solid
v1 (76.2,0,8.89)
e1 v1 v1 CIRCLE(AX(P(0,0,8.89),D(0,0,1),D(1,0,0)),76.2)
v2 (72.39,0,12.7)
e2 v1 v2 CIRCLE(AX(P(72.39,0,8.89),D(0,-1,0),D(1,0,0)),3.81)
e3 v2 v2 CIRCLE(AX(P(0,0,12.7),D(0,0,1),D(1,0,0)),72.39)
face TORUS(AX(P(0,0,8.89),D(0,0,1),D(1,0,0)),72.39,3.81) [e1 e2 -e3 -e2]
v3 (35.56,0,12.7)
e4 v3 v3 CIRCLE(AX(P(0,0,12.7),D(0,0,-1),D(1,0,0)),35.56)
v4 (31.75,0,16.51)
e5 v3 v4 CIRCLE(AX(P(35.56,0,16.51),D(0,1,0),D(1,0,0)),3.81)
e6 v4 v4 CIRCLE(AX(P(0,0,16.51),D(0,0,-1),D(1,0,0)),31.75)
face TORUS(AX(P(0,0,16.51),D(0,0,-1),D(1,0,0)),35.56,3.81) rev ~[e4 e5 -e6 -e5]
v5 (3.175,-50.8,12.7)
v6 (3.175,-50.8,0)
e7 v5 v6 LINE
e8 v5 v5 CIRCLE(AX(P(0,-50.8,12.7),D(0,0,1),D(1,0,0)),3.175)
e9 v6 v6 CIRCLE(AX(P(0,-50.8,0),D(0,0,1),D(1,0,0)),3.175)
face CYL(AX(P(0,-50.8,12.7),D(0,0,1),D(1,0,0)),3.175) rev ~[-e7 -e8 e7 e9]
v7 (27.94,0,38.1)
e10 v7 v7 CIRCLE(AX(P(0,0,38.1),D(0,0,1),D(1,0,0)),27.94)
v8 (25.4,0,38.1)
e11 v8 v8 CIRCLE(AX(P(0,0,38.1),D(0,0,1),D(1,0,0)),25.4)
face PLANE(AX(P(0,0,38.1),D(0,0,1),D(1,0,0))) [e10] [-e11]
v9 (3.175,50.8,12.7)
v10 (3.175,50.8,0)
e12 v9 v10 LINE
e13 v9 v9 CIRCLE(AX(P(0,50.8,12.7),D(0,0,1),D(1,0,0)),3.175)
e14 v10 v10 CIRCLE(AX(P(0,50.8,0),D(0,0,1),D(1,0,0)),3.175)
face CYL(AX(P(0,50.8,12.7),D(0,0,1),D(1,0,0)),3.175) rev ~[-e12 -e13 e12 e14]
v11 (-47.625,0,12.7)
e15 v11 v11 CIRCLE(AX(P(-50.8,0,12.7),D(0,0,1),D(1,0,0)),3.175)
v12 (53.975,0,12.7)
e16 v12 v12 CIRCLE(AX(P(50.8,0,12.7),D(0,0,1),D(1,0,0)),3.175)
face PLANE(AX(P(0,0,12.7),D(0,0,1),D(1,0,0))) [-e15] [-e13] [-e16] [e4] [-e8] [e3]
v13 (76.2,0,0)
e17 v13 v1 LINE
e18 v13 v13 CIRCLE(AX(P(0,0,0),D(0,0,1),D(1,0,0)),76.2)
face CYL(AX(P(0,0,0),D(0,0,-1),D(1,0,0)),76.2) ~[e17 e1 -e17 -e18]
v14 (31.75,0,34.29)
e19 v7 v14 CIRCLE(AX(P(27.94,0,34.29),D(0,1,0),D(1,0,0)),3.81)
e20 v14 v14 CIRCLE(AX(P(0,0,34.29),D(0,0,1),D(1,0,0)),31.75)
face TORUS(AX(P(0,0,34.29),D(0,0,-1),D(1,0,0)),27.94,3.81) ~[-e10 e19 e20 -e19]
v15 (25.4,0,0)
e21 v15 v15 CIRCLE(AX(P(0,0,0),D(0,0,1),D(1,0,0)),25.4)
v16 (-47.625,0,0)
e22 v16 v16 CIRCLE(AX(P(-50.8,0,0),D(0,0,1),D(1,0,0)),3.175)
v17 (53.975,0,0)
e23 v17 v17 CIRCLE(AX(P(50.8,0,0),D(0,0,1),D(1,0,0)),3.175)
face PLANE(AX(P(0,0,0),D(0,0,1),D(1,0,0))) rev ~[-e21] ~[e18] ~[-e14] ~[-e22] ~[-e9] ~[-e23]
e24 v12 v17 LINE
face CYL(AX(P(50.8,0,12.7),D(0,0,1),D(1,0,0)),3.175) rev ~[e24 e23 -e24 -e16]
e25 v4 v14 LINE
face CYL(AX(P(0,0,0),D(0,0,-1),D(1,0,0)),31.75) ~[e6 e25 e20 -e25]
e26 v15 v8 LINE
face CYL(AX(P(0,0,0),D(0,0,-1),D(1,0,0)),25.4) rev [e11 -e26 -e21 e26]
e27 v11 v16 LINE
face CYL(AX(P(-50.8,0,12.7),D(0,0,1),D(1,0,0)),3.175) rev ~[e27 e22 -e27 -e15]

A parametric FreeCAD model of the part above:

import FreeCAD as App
import Part
import Sketcher
from FreeCAD import Vector
Q = App.Units.Quantity


def edges_at(feature, points):
    """Names of the edges that pass closest to the given points."""
    edges = feature.Shape.Edges
    near = lambda p: min(range(len(edges)), key=lambda i: edges[i].distToShape(Part.Vertex(*p))[0])
    return sorted({f"Edge{near(p) + 1}" for p in points})

doc = App.newDocument("Part")
body = doc.addObject("PartDesign::Body", "Body")

# Sketch on XY plane
sketch1 = body.newObject("Sketcher::SketchObject", "Sketch")
sketch1.AttachmentSupport = (doc.getObject("XY_Plane"), [""])
sketch1.MapMode = "FlatFace"
sketch1.addGeometry(Part.Circle(Vector(0, 0, 0), Vector(0, 0, 1), 76), False)
sketch1.addGeometry(Part.Circle(Vector(0, 0, 0), Vector(0, 0, 1), 25), False)
sketch1.addConstraint(Sketcher.Constraint("Coincident", 0, 3, -1, 1))
sketch1.addConstraint(Sketcher.Constraint("Coincident", 1, 3, -1, 1))
sketch1.addConstraint(Sketcher.Constraint("Diameter", 0, Q("6 in")))
sketch1.addConstraint(Sketcher.Constraint("Diameter", 1, Q("2 in")))
pad1 = body.newObject("PartDesign::Pad", "Pad")
pad1.Profile = sketch1
pad1.Length = Q("0.5 in")

# Sketch on XY plane
sketch2 = body.newObject("Sketcher::SketchObject", "Sketch001")
sketch2.AttachmentSupport = (doc.getObject("XY_Plane"), [""])
sketch2.MapMode = "FlatFace"
sketch2.addGeometry(Part.Circle(Vector(0, 0, 0), Vector(0, 0, 1), 32), False)
sketch2.addGeometry(Part.Circle(Vector(0, 0, 0), Vector(0, 0, 1), 25), False)
sketch2.addConstraint(Sketcher.Constraint("Coincident", 0, 3, -1, 1))
sketch2.addConstraint(Sketcher.Constraint("Coincident", 1, 3, -1, 1))
sketch2.addConstraint(Sketcher.Constraint("Diameter", 1, Q("2 in")))
sketch2.addConstraint(Sketcher.Constraint("Diameter", 0, Q("2.5 in")))
pad2 = body.newObject("PartDesign::Pad", "Pad001")
pad2.Profile = sketch2
pad2.Length = Q("1.5 in")

# Sketch on XY plane
sketch3 = body.newObject("Sketcher::SketchObject", "Sketch002")
sketch3.AttachmentSupport = (doc.getObject("XY_Plane"), [""])
sketch3.MapMode = "FlatFace"
sketch3.AttachmentOffset = App.Placement(Vector(0, 0, 0.5 * 25.4), App.Rotation())
sketch3.addGeometry(Part.Circle(Vector(-50.8, 0, 0), Vector(0, 0, 1), 3.2), False)
sketch3.addGeometry(Part.Circle(Vector(0, -50.8, 0), Vector(0, 0, 1), 3.2), False)
sketch3.addGeometry(Part.Circle(Vector(50.8, 0, 0), Vector(0, 0, 1), 3.2), False)
sketch3.addGeometry(Part.Circle(Vector(0, 50.8, 0), Vector(0, 0, 1), 3.2), False)
sketch3.addConstraint(Sketcher.Constraint("Equal", 0, 1))
sketch3.addConstraint(Sketcher.Constraint("Equal", 1, 2))
sketch3.addConstraint(Sketcher.Constraint("Equal", 2, 3))
sketch3.addConstraint(Sketcher.Constraint("Symmetric", 0, 3, 2, 3, -1, 1))
sketch3.addConstraint(Sketcher.Constraint("Symmetric", 1, 3, 3, 3, -1, 1))
sketch3.addConstraint(Sketcher.Constraint("PointOnObject", 0, 3, -1))
sketch3.addConstraint(Sketcher.Constraint("PointOnObject", 1, 3, -2))
sketch3.addConstraint(Sketcher.Constraint("Diameter", 0, Q("0.25 in")))
sketch3.addConstraint(Sketcher.Constraint("DistanceX", 0, 3, -1, 1, Q("2 in")))
sketch3.addConstraint(Sketcher.Constraint("DistanceY", 1, 3, -1, 1, Q("2 in")))
pocket1 = body.newObject("PartDesign::Pocket", "Pocket")
pocket1.Profile = sketch3
pocket1.Type = "ThroughAll"
doc.recompute()

fillet = body.newObject("PartDesign::Fillet", "Fillet")
fillet.Base = (pocket1, edges_at(pocket1, [(-76.2, 0, 12.7), (-31.75, 0, 38.1), (-31.75, 0, 12.7)]))
fillet.Radius = Q("0.15 in")

doc.recompute()
